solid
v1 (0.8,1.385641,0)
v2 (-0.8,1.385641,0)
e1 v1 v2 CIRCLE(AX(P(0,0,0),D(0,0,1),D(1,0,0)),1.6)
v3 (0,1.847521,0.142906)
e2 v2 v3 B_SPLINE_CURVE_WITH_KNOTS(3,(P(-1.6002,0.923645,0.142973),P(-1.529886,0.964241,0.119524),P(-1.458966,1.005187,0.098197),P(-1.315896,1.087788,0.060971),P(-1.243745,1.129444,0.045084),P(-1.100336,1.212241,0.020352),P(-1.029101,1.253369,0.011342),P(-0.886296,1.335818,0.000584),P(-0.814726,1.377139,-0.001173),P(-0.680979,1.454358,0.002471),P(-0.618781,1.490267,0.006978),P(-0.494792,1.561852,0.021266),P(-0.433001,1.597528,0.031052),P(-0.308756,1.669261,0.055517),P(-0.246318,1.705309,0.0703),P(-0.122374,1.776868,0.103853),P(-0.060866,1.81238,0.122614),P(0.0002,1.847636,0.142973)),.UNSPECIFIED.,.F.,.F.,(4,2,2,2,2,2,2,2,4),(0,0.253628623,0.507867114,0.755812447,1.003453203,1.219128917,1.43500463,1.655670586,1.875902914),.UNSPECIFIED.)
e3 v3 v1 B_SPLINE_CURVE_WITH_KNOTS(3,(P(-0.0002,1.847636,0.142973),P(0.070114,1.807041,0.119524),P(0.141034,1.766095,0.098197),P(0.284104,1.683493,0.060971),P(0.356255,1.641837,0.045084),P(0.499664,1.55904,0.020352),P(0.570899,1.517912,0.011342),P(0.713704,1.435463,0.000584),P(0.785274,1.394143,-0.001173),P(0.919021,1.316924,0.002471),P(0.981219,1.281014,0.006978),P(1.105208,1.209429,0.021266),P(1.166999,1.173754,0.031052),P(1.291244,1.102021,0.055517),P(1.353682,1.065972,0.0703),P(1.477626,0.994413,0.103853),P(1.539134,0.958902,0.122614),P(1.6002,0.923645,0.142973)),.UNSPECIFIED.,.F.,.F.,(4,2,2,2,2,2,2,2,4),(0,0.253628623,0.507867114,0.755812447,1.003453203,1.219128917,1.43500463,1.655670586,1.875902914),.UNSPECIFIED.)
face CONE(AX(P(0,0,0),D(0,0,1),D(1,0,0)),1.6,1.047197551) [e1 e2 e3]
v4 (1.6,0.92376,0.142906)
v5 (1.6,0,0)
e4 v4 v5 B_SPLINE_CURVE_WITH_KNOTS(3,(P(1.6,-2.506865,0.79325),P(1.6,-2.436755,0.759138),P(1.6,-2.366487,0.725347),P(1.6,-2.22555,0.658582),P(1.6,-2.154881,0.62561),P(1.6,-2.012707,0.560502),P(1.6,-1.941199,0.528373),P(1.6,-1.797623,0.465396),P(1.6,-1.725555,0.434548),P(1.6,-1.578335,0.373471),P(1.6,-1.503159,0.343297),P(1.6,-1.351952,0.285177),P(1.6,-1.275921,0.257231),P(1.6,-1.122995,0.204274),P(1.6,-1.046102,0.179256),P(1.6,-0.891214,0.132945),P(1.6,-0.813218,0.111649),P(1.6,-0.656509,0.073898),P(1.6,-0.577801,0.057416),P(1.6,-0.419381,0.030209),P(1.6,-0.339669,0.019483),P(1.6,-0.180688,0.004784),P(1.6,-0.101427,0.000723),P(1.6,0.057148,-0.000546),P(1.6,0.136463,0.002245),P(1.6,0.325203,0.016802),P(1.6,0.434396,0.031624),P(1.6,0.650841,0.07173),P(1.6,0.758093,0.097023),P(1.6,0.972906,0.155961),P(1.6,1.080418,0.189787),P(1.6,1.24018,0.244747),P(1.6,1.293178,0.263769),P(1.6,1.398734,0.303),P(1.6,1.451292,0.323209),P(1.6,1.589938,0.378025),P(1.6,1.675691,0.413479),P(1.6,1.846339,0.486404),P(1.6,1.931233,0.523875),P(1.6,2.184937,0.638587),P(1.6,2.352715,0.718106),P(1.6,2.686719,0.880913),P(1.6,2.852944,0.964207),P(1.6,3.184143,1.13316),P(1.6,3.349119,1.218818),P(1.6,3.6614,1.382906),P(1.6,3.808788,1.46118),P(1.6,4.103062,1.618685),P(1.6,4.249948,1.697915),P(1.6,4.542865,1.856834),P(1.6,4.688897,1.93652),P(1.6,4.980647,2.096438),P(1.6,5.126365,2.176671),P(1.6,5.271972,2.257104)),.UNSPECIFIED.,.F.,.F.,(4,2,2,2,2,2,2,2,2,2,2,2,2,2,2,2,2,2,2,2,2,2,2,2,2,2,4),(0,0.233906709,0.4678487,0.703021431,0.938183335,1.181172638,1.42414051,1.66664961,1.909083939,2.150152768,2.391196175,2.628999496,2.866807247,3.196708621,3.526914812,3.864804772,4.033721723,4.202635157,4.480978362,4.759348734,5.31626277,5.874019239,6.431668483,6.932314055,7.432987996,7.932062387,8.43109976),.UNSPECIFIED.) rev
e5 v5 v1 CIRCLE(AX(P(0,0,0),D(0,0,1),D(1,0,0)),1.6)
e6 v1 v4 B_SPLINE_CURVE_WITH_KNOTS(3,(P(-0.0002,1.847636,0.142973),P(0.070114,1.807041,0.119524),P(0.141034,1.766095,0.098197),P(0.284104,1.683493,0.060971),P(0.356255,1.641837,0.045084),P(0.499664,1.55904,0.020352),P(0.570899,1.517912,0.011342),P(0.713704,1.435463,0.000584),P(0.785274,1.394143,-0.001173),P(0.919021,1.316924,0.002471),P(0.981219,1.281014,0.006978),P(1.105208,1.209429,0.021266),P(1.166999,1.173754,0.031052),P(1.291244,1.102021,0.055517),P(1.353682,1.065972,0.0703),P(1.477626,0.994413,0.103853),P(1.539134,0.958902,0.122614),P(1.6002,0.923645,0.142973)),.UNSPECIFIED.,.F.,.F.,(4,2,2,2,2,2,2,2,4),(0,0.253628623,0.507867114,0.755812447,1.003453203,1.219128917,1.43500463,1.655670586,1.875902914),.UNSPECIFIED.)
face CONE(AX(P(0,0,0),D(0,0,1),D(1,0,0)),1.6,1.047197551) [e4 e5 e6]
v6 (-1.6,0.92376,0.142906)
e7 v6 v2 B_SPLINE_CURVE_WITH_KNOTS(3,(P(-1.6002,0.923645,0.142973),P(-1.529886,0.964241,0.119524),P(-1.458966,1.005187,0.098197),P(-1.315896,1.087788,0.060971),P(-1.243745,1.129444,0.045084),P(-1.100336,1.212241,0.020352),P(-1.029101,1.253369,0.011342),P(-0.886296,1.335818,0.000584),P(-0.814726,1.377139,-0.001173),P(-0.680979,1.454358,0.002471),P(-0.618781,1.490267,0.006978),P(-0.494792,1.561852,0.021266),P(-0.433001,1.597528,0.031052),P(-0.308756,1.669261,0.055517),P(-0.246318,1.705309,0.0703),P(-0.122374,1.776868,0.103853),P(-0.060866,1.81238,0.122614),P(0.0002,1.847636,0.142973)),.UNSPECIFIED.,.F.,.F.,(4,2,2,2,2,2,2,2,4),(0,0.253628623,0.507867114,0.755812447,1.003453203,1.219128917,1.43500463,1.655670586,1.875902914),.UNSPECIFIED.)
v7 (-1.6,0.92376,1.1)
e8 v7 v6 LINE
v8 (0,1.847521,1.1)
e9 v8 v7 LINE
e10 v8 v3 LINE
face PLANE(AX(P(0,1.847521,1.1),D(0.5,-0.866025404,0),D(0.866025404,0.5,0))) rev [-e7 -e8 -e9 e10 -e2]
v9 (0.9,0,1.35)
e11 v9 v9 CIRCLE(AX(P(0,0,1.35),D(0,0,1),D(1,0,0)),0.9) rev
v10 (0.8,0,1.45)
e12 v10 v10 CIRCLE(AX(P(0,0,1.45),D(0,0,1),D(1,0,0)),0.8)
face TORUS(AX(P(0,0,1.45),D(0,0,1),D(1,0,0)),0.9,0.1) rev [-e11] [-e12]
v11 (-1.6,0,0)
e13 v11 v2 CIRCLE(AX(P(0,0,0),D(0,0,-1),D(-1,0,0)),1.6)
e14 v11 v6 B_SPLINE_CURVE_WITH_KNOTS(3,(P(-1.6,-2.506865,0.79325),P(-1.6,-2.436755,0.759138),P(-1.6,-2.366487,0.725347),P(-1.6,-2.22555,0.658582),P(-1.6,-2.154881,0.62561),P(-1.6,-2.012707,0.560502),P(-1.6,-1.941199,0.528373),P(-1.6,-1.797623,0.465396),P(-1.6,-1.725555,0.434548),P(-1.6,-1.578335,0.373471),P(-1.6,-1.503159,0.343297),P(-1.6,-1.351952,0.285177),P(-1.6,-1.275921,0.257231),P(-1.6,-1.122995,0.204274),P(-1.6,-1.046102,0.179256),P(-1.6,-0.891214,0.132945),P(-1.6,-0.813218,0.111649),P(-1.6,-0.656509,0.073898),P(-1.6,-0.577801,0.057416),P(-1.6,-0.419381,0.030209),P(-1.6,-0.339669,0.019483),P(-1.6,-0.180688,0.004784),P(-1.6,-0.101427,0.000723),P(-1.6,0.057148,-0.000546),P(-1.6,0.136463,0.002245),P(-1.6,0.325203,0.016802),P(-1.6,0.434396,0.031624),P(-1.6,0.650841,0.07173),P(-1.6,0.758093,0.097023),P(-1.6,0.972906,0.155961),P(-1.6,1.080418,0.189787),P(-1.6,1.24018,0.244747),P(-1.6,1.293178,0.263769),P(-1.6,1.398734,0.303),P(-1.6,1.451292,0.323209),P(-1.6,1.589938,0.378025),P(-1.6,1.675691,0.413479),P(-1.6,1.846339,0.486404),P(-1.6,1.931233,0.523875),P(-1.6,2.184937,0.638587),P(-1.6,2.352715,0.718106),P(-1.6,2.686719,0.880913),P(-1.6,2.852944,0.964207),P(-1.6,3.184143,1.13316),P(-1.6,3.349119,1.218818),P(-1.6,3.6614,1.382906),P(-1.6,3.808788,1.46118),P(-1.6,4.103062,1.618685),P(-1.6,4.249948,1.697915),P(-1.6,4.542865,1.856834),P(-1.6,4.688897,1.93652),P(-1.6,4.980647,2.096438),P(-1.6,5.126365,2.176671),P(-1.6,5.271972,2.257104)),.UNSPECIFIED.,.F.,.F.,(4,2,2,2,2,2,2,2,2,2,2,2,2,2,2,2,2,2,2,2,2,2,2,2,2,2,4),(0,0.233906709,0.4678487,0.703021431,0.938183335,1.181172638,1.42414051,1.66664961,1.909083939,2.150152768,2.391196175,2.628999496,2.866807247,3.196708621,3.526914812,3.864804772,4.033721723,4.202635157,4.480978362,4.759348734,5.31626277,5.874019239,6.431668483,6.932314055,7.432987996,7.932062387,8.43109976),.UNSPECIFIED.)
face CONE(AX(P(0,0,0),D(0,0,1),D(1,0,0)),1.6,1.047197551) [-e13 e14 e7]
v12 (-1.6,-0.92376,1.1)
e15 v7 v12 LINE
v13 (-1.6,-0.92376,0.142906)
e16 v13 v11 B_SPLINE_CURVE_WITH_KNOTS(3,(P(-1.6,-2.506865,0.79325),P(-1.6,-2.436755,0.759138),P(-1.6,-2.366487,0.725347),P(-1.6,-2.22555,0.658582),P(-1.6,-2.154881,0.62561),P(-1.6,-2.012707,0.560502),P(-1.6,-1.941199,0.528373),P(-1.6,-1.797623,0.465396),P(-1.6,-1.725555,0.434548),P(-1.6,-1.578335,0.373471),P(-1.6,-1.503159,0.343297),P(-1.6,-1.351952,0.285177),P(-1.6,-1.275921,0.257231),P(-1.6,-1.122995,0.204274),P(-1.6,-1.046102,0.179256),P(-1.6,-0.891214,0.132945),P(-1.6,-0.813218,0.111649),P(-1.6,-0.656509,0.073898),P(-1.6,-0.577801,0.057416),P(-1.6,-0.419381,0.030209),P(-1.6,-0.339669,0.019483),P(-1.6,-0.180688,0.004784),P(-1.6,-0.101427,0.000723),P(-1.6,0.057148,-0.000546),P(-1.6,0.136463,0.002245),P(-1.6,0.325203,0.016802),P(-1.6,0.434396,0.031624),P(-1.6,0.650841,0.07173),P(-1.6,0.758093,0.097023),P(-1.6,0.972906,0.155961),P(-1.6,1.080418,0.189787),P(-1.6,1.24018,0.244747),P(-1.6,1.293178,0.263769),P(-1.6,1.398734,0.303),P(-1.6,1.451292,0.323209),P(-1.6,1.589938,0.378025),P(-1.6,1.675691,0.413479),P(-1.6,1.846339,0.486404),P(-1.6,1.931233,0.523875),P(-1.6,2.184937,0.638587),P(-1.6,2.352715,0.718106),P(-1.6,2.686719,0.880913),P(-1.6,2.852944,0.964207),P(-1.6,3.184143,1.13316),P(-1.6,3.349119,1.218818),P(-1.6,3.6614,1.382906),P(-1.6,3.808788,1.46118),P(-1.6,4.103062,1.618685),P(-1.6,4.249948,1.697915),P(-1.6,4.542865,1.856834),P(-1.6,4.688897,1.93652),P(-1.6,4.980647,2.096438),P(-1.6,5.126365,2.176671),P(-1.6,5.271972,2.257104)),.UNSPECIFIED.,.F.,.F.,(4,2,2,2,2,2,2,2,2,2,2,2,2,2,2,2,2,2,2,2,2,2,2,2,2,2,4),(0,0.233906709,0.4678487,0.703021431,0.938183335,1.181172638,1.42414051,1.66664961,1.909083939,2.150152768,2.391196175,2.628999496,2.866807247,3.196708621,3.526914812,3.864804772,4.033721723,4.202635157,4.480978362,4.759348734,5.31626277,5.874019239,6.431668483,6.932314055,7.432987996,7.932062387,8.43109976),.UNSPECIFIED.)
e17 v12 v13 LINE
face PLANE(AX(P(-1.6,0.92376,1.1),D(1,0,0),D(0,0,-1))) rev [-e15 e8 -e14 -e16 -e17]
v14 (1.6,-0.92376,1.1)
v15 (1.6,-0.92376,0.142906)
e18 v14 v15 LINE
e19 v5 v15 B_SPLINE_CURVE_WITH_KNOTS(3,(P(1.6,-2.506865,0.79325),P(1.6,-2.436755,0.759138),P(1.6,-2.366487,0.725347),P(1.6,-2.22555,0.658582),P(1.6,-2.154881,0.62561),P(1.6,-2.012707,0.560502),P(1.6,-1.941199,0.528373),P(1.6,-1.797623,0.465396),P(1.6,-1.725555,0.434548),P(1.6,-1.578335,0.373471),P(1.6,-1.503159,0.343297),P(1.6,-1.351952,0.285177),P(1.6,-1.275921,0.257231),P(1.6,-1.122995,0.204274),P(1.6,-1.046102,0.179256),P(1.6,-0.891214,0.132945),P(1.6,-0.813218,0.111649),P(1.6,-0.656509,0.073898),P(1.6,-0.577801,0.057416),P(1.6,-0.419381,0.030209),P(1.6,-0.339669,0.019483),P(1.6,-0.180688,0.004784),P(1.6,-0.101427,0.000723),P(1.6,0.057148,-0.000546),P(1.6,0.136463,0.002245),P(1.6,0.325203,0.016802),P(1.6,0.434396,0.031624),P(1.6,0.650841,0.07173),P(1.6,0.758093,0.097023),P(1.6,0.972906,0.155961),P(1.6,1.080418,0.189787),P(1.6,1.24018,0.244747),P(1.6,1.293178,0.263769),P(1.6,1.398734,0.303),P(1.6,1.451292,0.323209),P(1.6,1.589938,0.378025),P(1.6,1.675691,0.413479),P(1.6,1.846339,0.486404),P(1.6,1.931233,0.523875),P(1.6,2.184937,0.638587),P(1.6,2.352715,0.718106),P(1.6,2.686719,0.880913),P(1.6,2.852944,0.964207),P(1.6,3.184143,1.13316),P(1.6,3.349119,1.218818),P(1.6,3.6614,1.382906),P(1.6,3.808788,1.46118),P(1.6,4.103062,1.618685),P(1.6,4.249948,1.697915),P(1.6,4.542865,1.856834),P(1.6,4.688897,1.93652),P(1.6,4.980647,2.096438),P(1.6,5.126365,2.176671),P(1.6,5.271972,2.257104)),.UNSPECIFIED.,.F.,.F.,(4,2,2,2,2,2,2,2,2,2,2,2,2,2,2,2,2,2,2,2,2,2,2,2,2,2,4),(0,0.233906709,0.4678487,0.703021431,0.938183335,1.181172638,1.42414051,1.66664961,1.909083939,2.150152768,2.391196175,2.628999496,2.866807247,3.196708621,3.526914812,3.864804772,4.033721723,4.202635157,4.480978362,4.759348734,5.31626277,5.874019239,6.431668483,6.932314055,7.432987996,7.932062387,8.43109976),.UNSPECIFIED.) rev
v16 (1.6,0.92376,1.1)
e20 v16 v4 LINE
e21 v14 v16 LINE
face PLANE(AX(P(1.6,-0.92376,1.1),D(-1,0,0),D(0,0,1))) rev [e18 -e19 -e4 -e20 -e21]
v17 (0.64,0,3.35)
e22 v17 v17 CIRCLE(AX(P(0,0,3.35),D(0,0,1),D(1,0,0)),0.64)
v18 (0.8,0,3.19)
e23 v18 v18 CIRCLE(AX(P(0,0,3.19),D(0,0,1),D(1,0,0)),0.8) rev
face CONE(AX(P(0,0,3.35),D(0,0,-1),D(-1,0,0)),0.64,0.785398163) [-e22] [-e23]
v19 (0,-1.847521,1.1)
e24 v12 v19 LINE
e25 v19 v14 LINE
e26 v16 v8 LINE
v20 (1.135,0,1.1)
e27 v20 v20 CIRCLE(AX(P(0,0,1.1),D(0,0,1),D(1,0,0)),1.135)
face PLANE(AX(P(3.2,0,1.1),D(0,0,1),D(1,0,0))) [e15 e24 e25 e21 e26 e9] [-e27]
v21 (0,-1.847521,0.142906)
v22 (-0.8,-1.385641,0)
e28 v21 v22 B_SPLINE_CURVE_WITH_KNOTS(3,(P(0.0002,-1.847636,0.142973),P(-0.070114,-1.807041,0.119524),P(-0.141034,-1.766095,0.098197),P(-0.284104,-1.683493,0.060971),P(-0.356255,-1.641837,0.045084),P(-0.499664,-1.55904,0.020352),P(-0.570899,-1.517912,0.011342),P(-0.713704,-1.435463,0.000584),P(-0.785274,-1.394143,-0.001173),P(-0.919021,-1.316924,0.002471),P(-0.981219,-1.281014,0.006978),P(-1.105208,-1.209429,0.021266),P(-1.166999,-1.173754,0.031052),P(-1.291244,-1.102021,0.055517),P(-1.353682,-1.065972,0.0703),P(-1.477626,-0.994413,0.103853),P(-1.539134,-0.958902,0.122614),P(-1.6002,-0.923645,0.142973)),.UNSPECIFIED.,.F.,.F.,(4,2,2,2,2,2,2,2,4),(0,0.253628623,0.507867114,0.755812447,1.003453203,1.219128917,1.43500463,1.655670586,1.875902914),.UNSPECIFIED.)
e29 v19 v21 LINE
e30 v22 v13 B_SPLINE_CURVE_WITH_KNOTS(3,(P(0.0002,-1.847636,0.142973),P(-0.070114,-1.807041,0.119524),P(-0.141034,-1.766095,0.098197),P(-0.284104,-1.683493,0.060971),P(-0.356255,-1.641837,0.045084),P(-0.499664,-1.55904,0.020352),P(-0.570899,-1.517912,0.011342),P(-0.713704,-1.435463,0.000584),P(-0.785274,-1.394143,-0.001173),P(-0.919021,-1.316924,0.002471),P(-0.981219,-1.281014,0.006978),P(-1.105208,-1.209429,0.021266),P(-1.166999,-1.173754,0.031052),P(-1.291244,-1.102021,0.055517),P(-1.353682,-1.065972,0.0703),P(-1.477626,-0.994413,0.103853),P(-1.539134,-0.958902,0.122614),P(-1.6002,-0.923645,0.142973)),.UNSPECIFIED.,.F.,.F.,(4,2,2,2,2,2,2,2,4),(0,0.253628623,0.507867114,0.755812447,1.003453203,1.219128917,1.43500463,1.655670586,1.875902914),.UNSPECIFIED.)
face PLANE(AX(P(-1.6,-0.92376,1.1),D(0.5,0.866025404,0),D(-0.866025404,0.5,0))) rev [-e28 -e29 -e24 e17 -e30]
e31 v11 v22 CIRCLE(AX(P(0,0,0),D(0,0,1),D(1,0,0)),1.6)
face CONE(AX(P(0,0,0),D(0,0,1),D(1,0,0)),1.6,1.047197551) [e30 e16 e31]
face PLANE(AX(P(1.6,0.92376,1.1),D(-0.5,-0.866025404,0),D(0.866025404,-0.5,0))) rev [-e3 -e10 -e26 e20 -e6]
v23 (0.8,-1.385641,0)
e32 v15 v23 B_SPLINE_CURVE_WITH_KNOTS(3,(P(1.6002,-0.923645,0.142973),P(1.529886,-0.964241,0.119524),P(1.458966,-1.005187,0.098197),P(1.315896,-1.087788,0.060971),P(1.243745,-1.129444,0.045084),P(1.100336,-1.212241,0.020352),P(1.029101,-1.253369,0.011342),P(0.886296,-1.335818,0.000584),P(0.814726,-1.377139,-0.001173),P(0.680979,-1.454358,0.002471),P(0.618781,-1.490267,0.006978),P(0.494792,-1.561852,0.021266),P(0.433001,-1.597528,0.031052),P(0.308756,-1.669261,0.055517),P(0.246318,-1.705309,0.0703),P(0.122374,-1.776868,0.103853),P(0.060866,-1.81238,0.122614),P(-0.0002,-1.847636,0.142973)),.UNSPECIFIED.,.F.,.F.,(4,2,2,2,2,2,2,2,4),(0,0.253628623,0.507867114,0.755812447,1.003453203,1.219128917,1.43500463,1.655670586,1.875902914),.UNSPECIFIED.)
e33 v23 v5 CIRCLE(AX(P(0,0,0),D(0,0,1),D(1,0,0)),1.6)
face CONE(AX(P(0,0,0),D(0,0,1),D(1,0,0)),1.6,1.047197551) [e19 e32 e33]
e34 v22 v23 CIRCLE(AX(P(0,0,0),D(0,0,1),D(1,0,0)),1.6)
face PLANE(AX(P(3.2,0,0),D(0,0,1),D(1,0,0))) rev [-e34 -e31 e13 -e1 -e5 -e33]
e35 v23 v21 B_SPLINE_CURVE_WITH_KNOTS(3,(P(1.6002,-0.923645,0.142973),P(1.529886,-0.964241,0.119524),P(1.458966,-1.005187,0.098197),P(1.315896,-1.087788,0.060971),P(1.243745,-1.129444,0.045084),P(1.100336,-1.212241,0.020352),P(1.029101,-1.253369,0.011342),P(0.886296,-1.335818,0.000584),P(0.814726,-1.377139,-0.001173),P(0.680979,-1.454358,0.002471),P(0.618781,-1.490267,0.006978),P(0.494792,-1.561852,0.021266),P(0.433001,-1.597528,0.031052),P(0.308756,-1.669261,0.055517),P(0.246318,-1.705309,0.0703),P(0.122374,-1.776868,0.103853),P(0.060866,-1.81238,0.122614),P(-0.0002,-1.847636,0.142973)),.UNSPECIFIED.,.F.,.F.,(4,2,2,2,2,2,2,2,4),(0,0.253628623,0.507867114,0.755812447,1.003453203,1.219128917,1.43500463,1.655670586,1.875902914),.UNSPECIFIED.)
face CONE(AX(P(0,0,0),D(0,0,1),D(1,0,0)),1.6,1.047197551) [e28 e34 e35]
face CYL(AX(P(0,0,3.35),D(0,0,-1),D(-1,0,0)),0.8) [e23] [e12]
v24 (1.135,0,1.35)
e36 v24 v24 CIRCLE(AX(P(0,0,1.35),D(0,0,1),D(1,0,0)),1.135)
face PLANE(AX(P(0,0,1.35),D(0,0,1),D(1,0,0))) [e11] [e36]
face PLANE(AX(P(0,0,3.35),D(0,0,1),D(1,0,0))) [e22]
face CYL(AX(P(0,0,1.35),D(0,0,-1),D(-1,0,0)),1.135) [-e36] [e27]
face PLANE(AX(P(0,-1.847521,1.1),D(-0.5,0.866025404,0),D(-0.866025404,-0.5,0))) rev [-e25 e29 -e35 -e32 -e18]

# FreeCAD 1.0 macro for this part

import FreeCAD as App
import Part
import Sketcher

V = App.Vector
Q = App.Units.Quantity


def edges_at(feature, points):
    """Names of the edges that pass closest to the given points."""
    edges = feature.Shape.Edges
    near = lambda p: min(range(len(edges)), key=lambda i: edges[i].distToShape(Part.Vertex(*p))[0])
    return sorted({f"Edge{near(p) + 1}" for p in points})


def add_polygon(sketch, points):
    """Adds a closed chain of lines whose ends are joined by coincident constraints."""
    first, n = sketch.GeometryCount, len(points)
    for a, b in zip(points, points[1:] + points[:1]):
        sketch.addGeometry(Part.LineSegment(App.Vector(*a, 0), App.Vector(*b, 0)), False)
    for i in range(n):
        sketch.addConstraint(Sketcher.Constraint("Coincident", first + i, 2, first + (i + 1) % n, 1))

doc = App.newDocument("Part")
body = doc.addObject("PartDesign::Body", "Body")

# Sketch on XY plane
sketch1 = body.newObject("Sketcher::SketchObject", "Sketch")
sketch1.AttachmentSupport = (doc.getObject("XY_Plane"), [""])
sketch1.MapMode = "FlatFace"
add_polygon(sketch1, [(1.6, -0.92376), (1.6, 0.92376), (0, 1.847521), (-1.6, 0.92376), (-1.6, -0.92376), (0, -1.847521)])  # lines 0-5
sketch1.addConstraint([
    Sketcher.Constraint("Vertical", 0),
    Sketcher.Constraint("Vertical", 3),
    Sketcher.Constraint("Symmetric", 0, 2, 3, 2, -1, 1),
    Sketcher.Constraint("Symmetric", 1, 2, 4, 2, -1, 1),
    Sketcher.Constraint("PointOnObject", 1, 2, -2),
    Sketcher.Constraint("Parallel", 2, 5),
    Sketcher.Constraint("Horizontal", 0, 2, 2, 2),
    Sketcher.Constraint("Angle", 1, Q("150 deg")),
    Sketcher.Constraint("DistanceX", -1, 1, 0, 2, 1.6),
    Sketcher.Constraint("DistanceY", 0, 1, 0, 2, 1.847521),
])
pad1 = body.newObject("PartDesign::Pad", "Pad")
pad1.Profile = sketch1
pad1.Length = 1.1

# Sketch on XZ plane
sketch2 = body.newObject("Sketcher::SketchObject", "Sketch001")
sketch2.AttachmentSupport = (doc.getObject("XZ_Plane"), [""])
sketch2.MapMode = "FlatFace"
add_polygon(sketch2, [(3.505256, 0), (1.6, 0), (3.505256, 1.1)])  # lines 0-2
sketch2.addConstraint([
    Sketcher.Constraint("Horizontal", 0),
    Sketcher.Constraint("Vertical", 2),
    Sketcher.Constraint("PointOnObject", 0, 2, -1),
    Sketcher.Constraint("Angle", 1, Q("30 deg")),
    Sketcher.Constraint("DistanceY", 2, 2, 2, 1, 1.1),
    Sketcher.Constraint("DistanceX", -1, 1, 0, 2, 1.6),
])
groove = body.newObject("PartDesign::Groove", "Groove")
groove.Profile = sketch2
groove.ReferenceAxis = (sketch2, ["V_Axis"])
groove.Angle = 360

# Sketch on XY plane
sketch3 = body.newObject("Sketcher::SketchObject", "Sketch002")
sketch3.AttachmentSupport = (doc.getObject("XY_Plane"), [""])
sketch3.MapMode = "FlatFace"
sketch3.AttachmentOffset = App.Placement(V(0, 0, 1.1), App.Rotation())
sketch3.addGeometry(Part.Circle(V(0, 0, 0), V(0, 0, 1), 1.135), False)
sketch3.addConstraint([
    Sketcher.Constraint("Coincident", 0, 3, -1, 1),
    Sketcher.Constraint("Diameter", 0, 2.27),
])
pad2 = body.newObject("PartDesign::Pad", "Pad001")
pad2.Profile = sketch3
pad2.Length = 0.25

# Sketch on XY plane
sketch4 = body.newObject("Sketcher::SketchObject", "Sketch003")
sketch4.AttachmentSupport = (doc.getObject("XY_Plane"), [""])
sketch4.MapMode = "FlatFace"
sketch4.AttachmentOffset = App.Placement(V(0, 0, 1.35), App.Rotation())
sketch4.addGeometry(Part.Circle(V(0, 0, 0), V(0, 0, 1), 0.8), False)
sketch4.addConstraint([
    Sketcher.Constraint("Coincident", 0, 3, -1, 1),
    Sketcher.Constraint("Diameter", 0, 1.6),
])
pad3 = body.newObject("PartDesign::Pad", "Pad002")
pad3.Profile = sketch4
pad3.Length = 2
doc.recompute()

chamfer = body.newObject("PartDesign::Chamfer", "Chamfer")
chamfer.Base = (pad3, edges_at(pad3, [(-0.8, 0, 3.35)]))
chamfer.Size = 0.16
doc.recompute()

fillet = body.newObject("PartDesign::Fillet", "Fillet")
fillet.Base = (chamfer, edges_at(chamfer, [(-0.8, 0, 1.35)]))
fillet.Radius = 0.1

doc.recompute()
